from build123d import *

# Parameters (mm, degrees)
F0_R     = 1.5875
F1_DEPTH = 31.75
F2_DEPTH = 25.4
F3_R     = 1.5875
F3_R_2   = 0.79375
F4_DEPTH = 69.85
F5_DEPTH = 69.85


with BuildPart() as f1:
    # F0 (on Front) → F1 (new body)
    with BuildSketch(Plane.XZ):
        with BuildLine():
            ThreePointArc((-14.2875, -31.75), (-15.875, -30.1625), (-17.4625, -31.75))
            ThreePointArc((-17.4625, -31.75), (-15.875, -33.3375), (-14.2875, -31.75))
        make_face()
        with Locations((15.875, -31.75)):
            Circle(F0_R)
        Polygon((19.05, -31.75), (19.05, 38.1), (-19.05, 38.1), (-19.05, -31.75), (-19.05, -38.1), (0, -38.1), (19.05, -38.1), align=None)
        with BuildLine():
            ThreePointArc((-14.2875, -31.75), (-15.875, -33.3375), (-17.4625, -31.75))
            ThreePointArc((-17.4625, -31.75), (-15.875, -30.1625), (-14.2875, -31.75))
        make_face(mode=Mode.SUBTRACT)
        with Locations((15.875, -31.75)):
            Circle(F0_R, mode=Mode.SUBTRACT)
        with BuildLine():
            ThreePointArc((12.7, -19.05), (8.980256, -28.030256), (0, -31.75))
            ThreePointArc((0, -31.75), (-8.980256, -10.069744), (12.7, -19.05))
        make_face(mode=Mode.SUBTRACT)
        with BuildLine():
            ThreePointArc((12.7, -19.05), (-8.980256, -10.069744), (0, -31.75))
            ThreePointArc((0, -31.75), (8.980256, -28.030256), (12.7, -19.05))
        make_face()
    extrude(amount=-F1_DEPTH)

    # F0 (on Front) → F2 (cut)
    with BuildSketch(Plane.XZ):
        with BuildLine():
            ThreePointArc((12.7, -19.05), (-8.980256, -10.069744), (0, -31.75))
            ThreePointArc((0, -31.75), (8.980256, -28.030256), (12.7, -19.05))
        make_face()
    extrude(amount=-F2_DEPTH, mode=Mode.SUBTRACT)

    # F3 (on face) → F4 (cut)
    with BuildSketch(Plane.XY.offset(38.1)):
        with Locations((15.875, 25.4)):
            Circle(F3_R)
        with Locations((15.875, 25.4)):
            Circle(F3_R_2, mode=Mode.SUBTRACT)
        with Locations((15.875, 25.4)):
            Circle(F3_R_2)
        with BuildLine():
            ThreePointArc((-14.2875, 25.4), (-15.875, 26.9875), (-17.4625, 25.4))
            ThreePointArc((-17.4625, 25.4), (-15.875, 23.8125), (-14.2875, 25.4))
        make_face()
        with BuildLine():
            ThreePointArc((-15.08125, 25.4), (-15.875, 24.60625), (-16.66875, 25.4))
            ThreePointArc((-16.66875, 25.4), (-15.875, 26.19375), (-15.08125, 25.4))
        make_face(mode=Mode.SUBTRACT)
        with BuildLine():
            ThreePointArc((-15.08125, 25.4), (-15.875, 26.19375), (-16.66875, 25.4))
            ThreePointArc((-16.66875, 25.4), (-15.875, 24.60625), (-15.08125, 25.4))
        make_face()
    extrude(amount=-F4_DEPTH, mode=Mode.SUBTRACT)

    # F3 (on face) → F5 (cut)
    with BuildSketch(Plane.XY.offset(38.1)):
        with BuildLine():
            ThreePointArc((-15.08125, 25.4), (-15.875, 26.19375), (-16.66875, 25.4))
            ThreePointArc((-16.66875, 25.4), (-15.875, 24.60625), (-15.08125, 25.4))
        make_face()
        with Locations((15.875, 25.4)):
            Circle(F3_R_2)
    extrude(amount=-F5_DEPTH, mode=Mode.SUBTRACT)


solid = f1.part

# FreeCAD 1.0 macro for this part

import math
import FreeCAD as App
import Part
import Sketcher
from FreeCAD import Vector
Q = App.Units.Quantity


def add_polygon(sketch, points):
    """Adds a closed chain of lines whose ends are joined by coincident constraints."""
    first, n = sketch.GeometryCount, len(points)
    for a, b in zip(points, points[1:] + points[:1]):
        sketch.addGeometry(Part.LineSegment(App.Vector(*a, 0), App.Vector(*b, 0)), False)
    for i in range(n):
        sketch.addConstraint(Sketcher.Constraint("Coincident", first + i, 2, first + (i + 1) % n, 1))

doc = App.newDocument("Part")
body = doc.addObject("PartDesign::Body", "Body")

sketch1 = body.newObject("Sketcher::SketchObject", "Sketch")
sketch1.AttachmentSupport = (doc.getObject("XZ_Plane"), [""])
sketch1.MapMode = "FlatFace"
add_polygon(sketch1, [(19.1, 38.1), (-19.1, 38.1), (-19.1, -38.1), (19.1, -38.1)])
sketch1.addGeometry(Part.Circle(Vector(-15.9, -31.8, 0), Vector(0, 0, 1), 1.6), False)
sketch1.addGeometry(Part.Circle(Vector(15.9, -31.8, 0), Vector(0, 0, 1), 1.6), False)
sketch1.addConstraint([
    Sketcher.Constraint("Horizontal", 0),
    Sketcher.Constraint("Vertical", 1),
    Sketcher.Constraint("Horizontal", 2),
    Sketcher.Constraint("Vertical", 3),
    Sketcher.Constraint("Equal", 4, 5),
    Sketcher.Constraint("Symmetric", 0, 2, 2, 2, -1, 1),
    Sketcher.Constraint("Symmetric", 4, 3, 5, 3, -2),
    Sketcher.Constraint("DistanceY", 1, 2, 1, 1, Q("3 in")),
    Sketcher.Constraint("Diameter", 4, Q("0.125 in")),
    Sketcher.Constraint("DistanceX", 0, 2, 0, 1, Q("1.5 in")),
    Sketcher.Constraint("DistanceY", 4, 3, -1, 1, Q("1.25 in")),
    Sketcher.Constraint("DistanceX", 4, 3, 5, 3, Q("1.25 in")),
])
pad1 = body.newObject("PartDesign::Pad", "Pad")
pad1.Profile = sketch1
pad1.Length = Q("1.25 in")
pad1.Reversed = True

sketch2 = body.newObject("Sketcher::SketchObject", "Sketch001")
sketch2.AttachmentSupport = (doc.getObject("XZ_Plane"), [""])
sketch2.MapMode = "FlatFace"
sketch2.addGeometry([
    Part.ArcOfCircle(Part.Circle(Vector(0, -19, 0), Vector(0, 0, 1), 13), math.radians(0), math.radians(270)),
    Part.ArcOfCircle(Part.Circle(Vector(0, -19, 0), Vector(0, 0, 1), 13), math.radians(-90), math.radians(0)),
], False)
sketch2.addConstraint([
    Sketcher.Constraint("Tangent", 0, 1, 1, 2),
    Sketcher.Constraint("Coincident", 1, 1, 0, 2),
    Sketcher.Constraint("PointOnObject", 0, 3, -2),
    Sketcher.Constraint("PointOnObject", 1, 1, -2),
    Sketcher.Constraint("Horizontal", 1, 3, 0, 1),
    Sketcher.Constraint("Radius", 0, Q("0.5 in")),
    Sketcher.Constraint("DistanceY", 0, 3, -1, 1, Q("0.75 in")),
])
pocket1 = body.newObject("PartDesign::Pocket", "Pocket")
pocket1.Profile = sketch2
pocket1.Length = Q("1 in")

sketch3 = body.newObject("Sketcher::SketchObject", "Sketch002")
sketch3.AttachmentSupport = (doc.getObject("XY_Plane"), [""])
sketch3.MapMode = "FlatFace"
sketch3.AttachmentOffset = App.Placement(Vector(0, 0, 1.5 * 25.4), App.Rotation())
sketch3.addGeometry([
    Part.Circle(Vector(15.9, 25.4, 0), Vector(0, 0, 1), 1.6),
    Part.Circle(Vector(-15.9, 25.4, 0), Vector(0, 0, 1), 1.6),
], False)
sketch3.addConstraint([
    Sketcher.Constraint("Equal", 0, 1),
    Sketcher.Constraint("Symmetric", 0, 3, 1, 3, -2),
    Sketcher.Constraint("Diameter", 0, Q("0.125 in")),
    Sketcher.Constraint("DistanceY", -1, 1, 0, 3, Q("1 in")),
    Sketcher.Constraint("DistanceX", 1, 3, 0, 3, Q("1.25 in")),
])
pocket2 = body.newObject("PartDesign::Pocket", "Pocket001")
pocket2.Profile = sketch3
pocket2.Length = Q("2.75 in")

sketch4 = body.newObject("Sketcher::SketchObject", "Sketch003")
sketch4.AttachmentSupport = (doc.getObject("XY_Plane"), [""])
sketch4.MapMode = "FlatFace"
sketch4.AttachmentOffset = App.Placement(Vector(0, 0, 1.5 * 25.4), App.Rotation())
sketch4.addGeometry([
    Part.Circle(Vector(-15.9, 25.4, 0), Vector(0, 0, 1), 0.8),
    Part.Circle(Vector(15.9, 25.4, 0), Vector(0, 0, 1), 0.8),
], False)
sketch4.addConstraint([
    Sketcher.Constraint("Equal", 0, 1),
    Sketcher.Constraint("Symmetric", 0, 3, 1, 3, -2),
    Sketcher.Constraint("Diameter", 0, Q("0.0625 in")),
    Sketcher.Constraint("DistanceY", -1, 1, 0, 3, Q("1 in")),
    Sketcher.Constraint("DistanceX", 0, 3, 1, 3, Q("1.25 in")),
])
pocket3 = body.newObject("PartDesign::Pocket", "Pocket002")
pocket3.Profile = sketch4
pocket3.Length = Q("2.75 in")

doc.recompute()
